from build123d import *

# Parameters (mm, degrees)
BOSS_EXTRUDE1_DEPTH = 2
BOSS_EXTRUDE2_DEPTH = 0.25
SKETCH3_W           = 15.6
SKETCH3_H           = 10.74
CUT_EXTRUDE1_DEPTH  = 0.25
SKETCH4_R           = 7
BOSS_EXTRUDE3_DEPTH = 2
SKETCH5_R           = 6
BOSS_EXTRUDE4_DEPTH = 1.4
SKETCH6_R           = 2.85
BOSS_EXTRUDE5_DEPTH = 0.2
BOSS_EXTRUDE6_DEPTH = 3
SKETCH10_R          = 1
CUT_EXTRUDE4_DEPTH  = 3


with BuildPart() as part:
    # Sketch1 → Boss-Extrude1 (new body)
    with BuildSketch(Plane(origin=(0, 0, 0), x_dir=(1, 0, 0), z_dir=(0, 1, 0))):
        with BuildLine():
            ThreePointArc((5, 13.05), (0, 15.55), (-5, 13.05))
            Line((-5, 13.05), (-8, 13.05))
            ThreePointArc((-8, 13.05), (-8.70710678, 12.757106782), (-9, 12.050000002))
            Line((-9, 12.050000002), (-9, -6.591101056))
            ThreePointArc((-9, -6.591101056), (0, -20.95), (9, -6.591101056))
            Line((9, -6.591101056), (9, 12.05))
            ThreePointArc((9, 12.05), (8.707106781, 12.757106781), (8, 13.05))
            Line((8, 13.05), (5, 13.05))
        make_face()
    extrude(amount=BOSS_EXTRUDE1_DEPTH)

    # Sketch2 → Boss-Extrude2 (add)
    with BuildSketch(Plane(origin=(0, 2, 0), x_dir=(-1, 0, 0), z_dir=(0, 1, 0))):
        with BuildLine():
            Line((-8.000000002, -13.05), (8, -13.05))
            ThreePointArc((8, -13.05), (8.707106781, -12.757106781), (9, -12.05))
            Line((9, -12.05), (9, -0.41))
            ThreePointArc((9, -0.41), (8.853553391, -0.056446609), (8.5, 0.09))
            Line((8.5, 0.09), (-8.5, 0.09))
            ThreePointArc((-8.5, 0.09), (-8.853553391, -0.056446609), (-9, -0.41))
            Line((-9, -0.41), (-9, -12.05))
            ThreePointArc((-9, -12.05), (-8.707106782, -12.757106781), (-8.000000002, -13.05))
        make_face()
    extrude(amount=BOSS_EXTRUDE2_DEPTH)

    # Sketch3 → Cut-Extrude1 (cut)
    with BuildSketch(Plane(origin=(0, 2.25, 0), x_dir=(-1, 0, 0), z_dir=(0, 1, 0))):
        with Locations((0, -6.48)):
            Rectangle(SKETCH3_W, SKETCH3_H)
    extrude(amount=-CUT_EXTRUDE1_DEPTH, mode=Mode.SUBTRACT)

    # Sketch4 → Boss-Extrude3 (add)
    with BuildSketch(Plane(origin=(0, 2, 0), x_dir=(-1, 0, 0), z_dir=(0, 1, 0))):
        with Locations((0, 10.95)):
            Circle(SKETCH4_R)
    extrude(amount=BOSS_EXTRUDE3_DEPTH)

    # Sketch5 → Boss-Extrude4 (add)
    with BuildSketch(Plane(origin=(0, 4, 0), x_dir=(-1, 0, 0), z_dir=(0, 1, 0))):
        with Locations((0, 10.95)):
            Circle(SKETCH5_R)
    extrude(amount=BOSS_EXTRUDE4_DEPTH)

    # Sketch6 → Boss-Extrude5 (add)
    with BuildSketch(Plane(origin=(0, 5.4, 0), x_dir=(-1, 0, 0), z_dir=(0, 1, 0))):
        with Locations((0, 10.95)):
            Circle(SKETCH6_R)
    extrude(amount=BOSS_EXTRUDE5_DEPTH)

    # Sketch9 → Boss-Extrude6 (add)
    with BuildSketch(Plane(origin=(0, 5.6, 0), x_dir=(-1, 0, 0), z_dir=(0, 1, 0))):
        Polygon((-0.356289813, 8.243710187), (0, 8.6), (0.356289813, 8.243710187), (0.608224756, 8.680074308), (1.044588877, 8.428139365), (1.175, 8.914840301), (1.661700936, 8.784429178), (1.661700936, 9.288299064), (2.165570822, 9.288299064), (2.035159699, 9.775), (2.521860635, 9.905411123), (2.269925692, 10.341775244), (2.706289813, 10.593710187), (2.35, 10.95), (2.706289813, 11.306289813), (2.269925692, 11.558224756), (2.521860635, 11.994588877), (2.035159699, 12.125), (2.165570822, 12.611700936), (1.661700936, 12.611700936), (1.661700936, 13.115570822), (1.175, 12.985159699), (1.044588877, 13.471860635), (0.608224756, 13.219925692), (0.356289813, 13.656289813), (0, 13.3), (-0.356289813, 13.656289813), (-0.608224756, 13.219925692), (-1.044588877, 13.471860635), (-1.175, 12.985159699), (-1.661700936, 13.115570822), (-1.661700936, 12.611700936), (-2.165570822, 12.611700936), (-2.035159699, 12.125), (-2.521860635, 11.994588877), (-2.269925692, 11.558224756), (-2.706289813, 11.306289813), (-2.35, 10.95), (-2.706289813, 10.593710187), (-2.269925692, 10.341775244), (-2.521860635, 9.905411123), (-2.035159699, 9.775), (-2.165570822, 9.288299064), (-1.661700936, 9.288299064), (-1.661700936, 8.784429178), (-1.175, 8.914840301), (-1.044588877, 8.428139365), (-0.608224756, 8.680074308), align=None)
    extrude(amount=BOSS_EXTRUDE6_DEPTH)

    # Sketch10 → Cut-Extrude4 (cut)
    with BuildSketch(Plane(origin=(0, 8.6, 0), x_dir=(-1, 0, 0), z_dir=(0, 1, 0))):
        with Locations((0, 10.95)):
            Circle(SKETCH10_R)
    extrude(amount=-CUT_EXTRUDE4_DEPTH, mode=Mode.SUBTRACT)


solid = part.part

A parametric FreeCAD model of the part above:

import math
import FreeCAD as App
import Part
import Sketcher
Q = App.Units.Quantity

doc = App.newDocument("Part")
body = doc.addObject("PartDesign::Body", "Body")

sketch1 = doc.addObject("Sketcher::SketchObject", "Sketch")
body.addObject(sketch1)
sketch1.AttachmentSupport = (doc.XZ_Plane, [""])
sketch1.MapMode = "FlatFace"
sketch1.addGeometry([
    Part.ArcOfCircle(Part.Circle(App.Vector(0, -9.3, 0), App.Vector(0, 0, 1), 6.25), math.radians(-143.130102), math.radians(-36.869898)),
    Part.LineSegment(App.Vector(-5, -13.05, 0), App.Vector(-8, -13.05, 0)),
    Part.ArcOfCircle(Part.Circle(App.Vector(-8, -12.05, 0), App.Vector(0, 0, 1), 1), math.radians(-180), math.radians(-90)),
    Part.LineSegment(App.Vector(-9, -12.05, 0), App.Vector(-9, 6.591101, 0)),
    Part.ArcOfCircle(Part.Circle(App.Vector(0, 10.95, 0), App.Vector(0, 0, 1), 10), math.radians(-25.841933), math.radians(205.841933)),
    Part.LineSegment(App.Vector(9, 6.591101, 0), App.Vector(9, -12.05, 0)),
    Part.ArcOfCircle(Part.Circle(App.Vector(8, -12.05, 0), App.Vector(0, 0, 1), 1), math.radians(-90), math.radians(0)),
    Part.LineSegment(App.Vector(8, -13.05, 0), App.Vector(5, -13.05, 0)),
], False)
sketch1.addConstraint([
    Sketcher.Constraint("Coincident", 0, 1, 1, 1),
    Sketcher.Constraint("Tangent", 1, 2, 2, 2),
    Sketcher.Constraint("Tangent", 2, 1, 3, 1),
    Sketcher.Constraint("Coincident", 3, 2, 4, 2),
    Sketcher.Constraint("Coincident", 4, 1, 5, 1),
    Sketcher.Constraint("Tangent", 5, 2, 6, 2),
    Sketcher.Constraint("Tangent", 6, 1, 7, 1),
    Sketcher.Constraint("Coincident", 7, 2, 0, 2),
    Sketcher.Constraint("Horizontal", 1),
    Sketcher.Constraint("Vertical", 3),
    Sketcher.Constraint("Vertical", 5),
    Sketcher.Constraint("Horizontal", 7),
    Sketcher.Constraint("Equal", 2, 6),
    Sketcher.Constraint("Symmetric", 2, 3, 6, 3, -2),
    Sketcher.Constraint("PointOnObject", 0, 3, -2),
    Sketcher.Constraint("PointOnObject", 4, 3, -2),
    Sketcher.Constraint("Radius", 2, Q("1 mm")),
    Sketcher.Constraint("Radius", 4, Q("10 mm")),
    Sketcher.Constraint("DistanceX", 1, 2, 1, 1, Q("3 mm")),
    Sketcher.Constraint("Radius", 0, Q("6.25 mm")),
    Sketcher.Constraint("DistanceX", 2, 3, -1, 1, Q("8 mm")),
    Sketcher.Constraint("DistanceY", 2, 3, 4, 3, Q("23 mm")),
    Sketcher.Constraint("DistanceY", 0, 3, -1, 1, Q("9.3 mm")),
])
pad1 = doc.addObject("PartDesign::Pad", "Pad")
body.addObject(pad1)
pad1.Profile = sketch1
pad1.Length = 2
pad1.Reversed = True

sketch2 = doc.addObject("Sketcher::SketchObject", "Sketch001")
body.addObject(sketch2)
sketch2.AttachmentSupport = (doc.XZ_Plane, [""])
sketch2.MapMode = "FlatFace"
sketch2.AttachmentOffset = App.Placement(App.Vector(0, 0, -2), App.Rotation())
sketch2.addGeometry([
    Part.LineSegment(App.Vector(8, -13.05, 0), App.Vector(-8, -13.05, 0)),
    Part.ArcOfCircle(Part.Circle(App.Vector(-8, -12.05, 0), App.Vector(0, 0, 1), 1), math.radians(-180), math.radians(-90)),
    Part.LineSegment(App.Vector(-9, -12.05, 0), App.Vector(-9, -0.41, 0)),
    Part.ArcOfCircle(Part.Circle(App.Vector(-8.5, -0.41, 0), App.Vector(0, 0, 1), 0.5), math.radians(90), math.radians(180)),
    Part.LineSegment(App.Vector(-8.5, 0.09, 0), App.Vector(8.5, 0.09, 0)),
    Part.ArcOfCircle(Part.Circle(App.Vector(8.5, -0.41, 0), App.Vector(0, 0, 1), 0.5), math.radians(0), math.radians(90)),
    Part.LineSegment(App.Vector(9, -0.41, 0), App.Vector(9, -12.05, 0)),
    Part.ArcOfCircle(Part.Circle(App.Vector(8, -12.05, 0), App.Vector(0, 0, 1), 1), math.radians(-90), math.radians(0)),
], False)
sketch2.addConstraint([
    Sketcher.Constraint("Tangent", 0, 2, 1, 2),
    Sketcher.Constraint("Tangent", 1, 1, 2, 1),
    Sketcher.Constraint("Tangent", 2, 2, 3, 2),
    Sketcher.Constraint("Tangent", 3, 1, 4, 1),
    Sketcher.Constraint("Tangent", 4, 2, 5, 2),
    Sketcher.Constraint("Tangent", 5, 1, 6, 1),
    Sketcher.Constraint("Tangent", 6, 2, 7, 2),
    Sketcher.Constraint("Tangent", 7, 1, 0, 1),
    Sketcher.Constraint("Horizontal", 0),
    Sketcher.Constraint("Vertical", 2),
    Sketcher.Constraint("Horizontal", 4),
    Sketcher.Constraint("Vertical", 6),
    Sketcher.Constraint("Equal", 3, 5),
    Sketcher.Constraint("Equal", 1, 7),
    Sketcher.Constraint("Radius", 1, Q("1 mm")),
    Sketcher.Constraint("Radius", 3, Q("0.5 mm")),
    Sketcher.Constraint("DistanceX", 0, 2, 0, 1, Q("16 mm")),
    Sketcher.Constraint("DistanceX", 1, 3, -1, 1, Q("8 mm")),
    Sketcher.Constraint("DistanceY", 2, 1, 2, 2, Q("11.64 mm")),
    Sketcher.Constraint("DistanceY", 1, 3, -1, 1, Q("12.05 mm")),
])
pad2 = doc.addObject("PartDesign::Pad", "Pad001")
body.addObject(pad2)
pad2.Profile = sketch2
pad2.Length = 0.25
pad2.Reversed = True

sketch3 = doc.addObject("Sketcher::SketchObject", "Sketch002")
body.addObject(sketch3)
sketch3.AttachmentSupport = (doc.XZ_Plane, [""])
sketch3.MapMode = "FlatFace"
sketch3.AttachmentOffset = App.Placement(App.Vector(0, 0, -2.25), App.Rotation())
sketch3.addGeometry([
    Part.LineSegment(App.Vector(7.8, -1.11, 0), App.Vector(7.8, -11.85, 0)),
    Part.LineSegment(App.Vector(7.8, -11.85, 0), App.Vector(-7.8, -11.85, 0)),
    Part.LineSegment(App.Vector(-7.8, -11.85, 0), App.Vector(-7.8, -1.11, 0)),
    Part.LineSegment(App.Vector(-7.8, -1.11, 0), App.Vector(7.8, -1.11, 0)),
], False)
sketch3.addConstraint([
    Sketcher.Constraint("Coincident", 0, 2, 1, 1),
    Sketcher.Constraint("Coincident", 1, 2, 2, 1),
    Sketcher.Constraint("Coincident", 2, 2, 3, 1),
    Sketcher.Constraint("Coincident", 3, 2, 0, 1),
    Sketcher.Constraint("Vertical", 0),
    Sketcher.Constraint("Horizontal", 1),
    Sketcher.Constraint("Vertical", 2),
    Sketcher.Constraint("Horizontal", 3),
    Sketcher.Constraint("DistanceX", 1, 2, 1, 1, Q("15.6 mm")),
    Sketcher.Constraint("DistanceY", 0, 2, 0, 1, Q("10.74 mm")),
    Sketcher.Constraint("DistanceX", -1, 1, 0, 2, Q("7.8 mm")),
    Sketcher.Constraint("DistanceY", 0, 2, -1, 1, Q("11.85 mm")),
])
pocket1 = doc.addObject("PartDesign::Pocket", "Pocket")
body.addObject(pocket1)
pocket1.Profile = sketch3
pocket1.Length = 0.25
pocket1.Reversed = True

sketch4 = doc.addObject("Sketcher::SketchObject", "Sketch003")
body.addObject(sketch4)
sketch4.AttachmentSupport = (doc.XZ_Plane, [""])
sketch4.MapMode = "FlatFace"
sketch4.AttachmentOffset = App.Placement(App.Vector(0, 0, -2), App.Rotation())
sketch4.addGeometry(Part.Circle(App.Vector(0, 10.95, 0), App.Vector(0, 0, 1), 7), False)
sketch4.addConstraint([
    Sketcher.Constraint("PointOnObject", 0, 3, -2),
    Sketcher.Constraint("Diameter", 0, Q("14 mm")),
    Sketcher.Constraint("DistanceY", -1, 1, 0, 3, Q("10.95 mm")),
])
pad3 = doc.addObject("PartDesign::Pad", "Pad002")
body.addObject(pad3)
pad3.Profile = sketch4
pad3.Length = 2
pad3.Reversed = True

sketch5 = doc.addObject("Sketcher::SketchObject", "Sketch004")
body.addObject(sketch5)
sketch5.AttachmentSupport = (doc.XZ_Plane, [""])
sketch5.MapMode = "FlatFace"
sketch5.AttachmentOffset = App.Placement(App.Vector(0, 0, -4), App.Rotation())
sketch5.addGeometry(Part.Circle(App.Vector(0, 10.95, 0), App.Vector(0, 0, 1), 6), False)
sketch5.addConstraint([
    Sketcher.Constraint("PointOnObject", 0, 3, -2),
    Sketcher.Constraint("Diameter", 0, Q("12 mm")),
    Sketcher.Constraint("DistanceY", -1, 1, 0, 3, Q("10.95 mm")),
])
pad4 = doc.addObject("PartDesign::Pad", "Pad003")
body.addObject(pad4)
pad4.Profile = sketch5
pad4.Length = 1.4
pad4.Reversed = True

sketch6 = doc.addObject("Sketcher::SketchObject", "Sketch005")
body.addObject(sketch6)
sketch6.AttachmentSupport = (doc.XZ_Plane, [""])
sketch6.MapMode = "FlatFace"
sketch6.AttachmentOffset = App.Placement(App.Vector(0, 0, -5.4), App.Rotation())
sketch6.addGeometry(Part.Circle(App.Vector(0, 10.95, 0), App.Vector(0, 0, 1), 2.85), False)
sketch6.addConstraint([
    Sketcher.Constraint("PointOnObject", 0, 3, -2),
    Sketcher.Constraint("Diameter", 0, Q("5.7 mm")),
    Sketcher.Constraint("DistanceY", -1, 1, 0, 3, Q("10.95 mm")),
])
pad5 = doc.addObject("PartDesign::Pad", "Pad004")
body.addObject(pad5)
pad5.Profile = sketch6
pad5.Length = 0.2
pad5.Reversed = True

sketch7 = doc.addObject("Sketcher::SketchObject", "Sketch006")
body.addObject(sketch7)
sketch7.AttachmentSupport = (doc.XZ_Plane, [""])
sketch7.MapMode = "FlatFace"
sketch7.AttachmentOffset = App.Placement(App.Vector(0, 0, -5.6), App.Rotation())
sketch7.addGeometry([
    Part.LineSegment(App.Vector(0.35629, 8.24371, 0), App.Vector(0, 8.6, 0)),
    Part.LineSegment(App.Vector(0, 8.6, 0), App.Vector(-0.35629, 8.24371, 0)),
    Part.LineSegment(App.Vector(-0.35629, 8.24371, 0), App.Vector(-0.608225, 8.680074, 0)),
    Part.LineSegment(App.Vector(-0.608225, 8.680074, 0), App.Vector(-1.044589, 8.428139, 0)),
    Part.LineSegment(App.Vector(-1.044589, 8.428139, 0), App.Vector(-1.175, 8.91484, 0)),
    Part.LineSegment(App.Vector(-1.175, 8.91484, 0), App.Vector(-1.661701, 8.784429, 0)),
    Part.LineSegment(App.Vector(-1.661701, 8.784429, 0), App.Vector(-1.661701, 9.288299, 0)),
    Part.LineSegment(App.Vector(-1.661701, 9.288299, 0), App.Vector(-2.165571, 9.288299, 0)),
    Part.LineSegment(App.Vector(-2.165571, 9.288299, 0), App.Vector(-2.03516, 9.775, 0)),
    Part.LineSegment(App.Vector(-2.03516, 9.775, 0), App.Vector(-2.521861, 9.905411, 0)),
    Part.LineSegment(App.Vector(-2.521861, 9.905411, 0), App.Vector(-2.269926, 10.341775, 0)),
    Part.LineSegment(App.Vector(-2.269926, 10.341775, 0), App.Vector(-2.70629, 10.59371, 0)),
    Part.LineSegment(App.Vector(-2.70629, 10.59371, 0), App.Vector(-2.35, 10.95, 0)),
    Part.LineSegment(App.Vector(-2.35, 10.95, 0), App.Vector(-2.70629, 11.30629, 0)),
    Part.LineSegment(App.Vector(-2.70629, 11.30629, 0), App.Vector(-2.269926, 11.558225, 0)),
    Part.LineSegment(App.Vector(-2.269926, 11.558225, 0), App.Vector(-2.521861, 11.994589, 0)),
    Part.LineSegment(App.Vector(-2.521861, 11.994589, 0), App.Vector(-2.03516, 12.125, 0)),
    Part.LineSegment(App.Vector(-2.03516, 12.125, 0), App.Vector(-2.165571, 12.611701, 0)),
    Part.LineSegment(App.Vector(-2.165571, 12.611701, 0), App.Vector(-1.661701, 12.611701, 0)),
    Part.LineSegment(App.Vector(-1.661701, 12.611701, 0), App.Vector(-1.661701, 13.115571, 0)),
    Part.LineSegment(App.Vector(-1.661701, 13.115571, 0), App.Vector(-1.175, 12.98516, 0)),
    Part.LineSegment(App.Vector(-1.175, 12.98516, 0), App.Vector(-1.044589, 13.471861, 0)),
    Part.LineSegment(App.Vector(-1.044589, 13.471861, 0), App.Vector(-0.608225, 13.219926, 0)),
    Part.LineSegment(App.Vector(-0.608225, 13.219926, 0), App.Vector(-0.35629, 13.65629, 0)),
    Part.LineSegment(App.Vector(-0.35629, 13.65629, 0), App.Vector(0, 13.3, 0)),
    Part.LineSegment(App.Vector(0, 13.3, 0), App.Vector(0.35629, 13.65629, 0)),
    Part.LineSegment(App.Vector(0.35629, 13.65629, 0), App.Vector(0.608225, 13.219926, 0)),
    Part.LineSegment(App.Vector(0.608225, 13.219926, 0), App.Vector(1.044589, 13.471861, 0)),
    Part.LineSegment(App.Vector(1.044589, 13.471861, 0), App.Vector(1.175, 12.98516, 0)),
    Part.LineSegment(App.Vector(1.175, 12.98516, 0), App.Vector(1.661701, 13.115571, 0)),
    Part.LineSegment(App.Vector(1.661701, 13.115571, 0), App.Vector(1.661701, 12.611701, 0)),
    Part.LineSegment(App.Vector(1.661701, 12.611701, 0), App.Vector(2.165571, 12.611701, 0)),
    Part.LineSegment(App.Vector(2.165571, 12.611701, 0), App.Vector(2.03516, 12.125, 0)),
    Part.LineSegment(App.Vector(2.03516, 12.125, 0), App.Vector(2.521861, 11.994589, 0)),
    Part.LineSegment(App.Vector(2.521861, 11.994589, 0), App.Vector(2.269926, 11.558225, 0)),
    Part.LineSegment(App.Vector(2.269926, 11.558225, 0), App.Vector(2.70629, 11.30629, 0)),
    Part.LineSegment(App.Vector(2.70629, 11.30629, 0), App.Vector(2.35, 10.95, 0)),
    Part.LineSegment(App.Vector(2.35, 10.95, 0), App.Vector(2.70629, 10.59371, 0)),
    Part.LineSegment(App.Vector(2.70629, 10.59371, 0), App.Vector(2.269926, 10.341775, 0)),
    Part.LineSegment(App.Vector(2.269926, 10.341775, 0), App.Vector(2.521861, 9.905411, 0)),
    Part.LineSegment(App.Vector(2.521861, 9.905411, 0), App.Vector(2.03516, 9.775, 0)),
    Part.LineSegment(App.Vector(2.03516, 9.775, 0), App.Vector(2.165571, 9.288299, 0)),
    Part.LineSegment(App.Vector(2.165571, 9.288299, 0), App.Vector(1.661701, 9.288299, 0)),
    Part.LineSegment(App.Vector(1.661701, 9.288299, 0), App.Vector(1.661701, 8.784429, 0)),
    Part.LineSegment(App.Vector(1.661701, 8.784429, 0), App.Vector(1.175, 8.91484, 0)),
    Part.LineSegment(App.Vector(1.175, 8.91484, 0), App.Vector(1.044589, 8.428139, 0)),
    Part.LineSegment(App.Vector(1.044589, 8.428139, 0), App.Vector(0.608225, 8.680074, 0)),
    Part.LineSegment(App.Vector(0.608225, 8.680074, 0), App.Vector(0.35629, 8.24371, 0)),
], False)
sketch7.addConstraint([
    Sketcher.Constraint("Coincident", 0, 2, 1, 1),
    Sketcher.Constraint("Coincident", 1, 2, 2, 1),
    Sketcher.Constraint("Coincident", 2, 2, 3, 1),
    Sketcher.Constraint("Coincident", 3, 2, 4, 1),
    Sketcher.Constraint("Coincident", 4, 2, 5, 1),
    Sketcher.Constraint("Coincident", 5, 2, 6, 1),
    Sketcher.Constraint("Coincident", 6, 2, 7, 1),
    Sketcher.Constraint("Coincident", 7, 2, 8, 1),
    Sketcher.Constraint("Coincident", 8, 2, 9, 1),
    Sketcher.Constraint("Coincident", 9, 2, 10, 1),
    Sketcher.Constraint("Coincident", 10, 2, 11, 1),
    Sketcher.Constraint("Coincident", 11, 2, 12, 1),
    Sketcher.Constraint("Coincident", 12, 2, 13, 1),
    Sketcher.Constraint("Coincident", 13, 2, 14, 1),
    Sketcher.Constraint("Coincident", 14, 2, 15, 1),
    Sketcher.Constraint("Coincident", 15, 2, 16, 1),
    Sketcher.Constraint("Coincident", 16, 2, 17, 1),
    Sketcher.Constraint("Coincident", 17, 2, 18, 1),
    Sketcher.Constraint("Coincident", 18, 2, 19, 1),
    Sketcher.Constraint("Coincident", 19, 2, 20, 1),
    Sketcher.Constraint("Coincident", 20, 2, 21, 1),
    Sketcher.Constraint("Coincident", 21, 2, 22, 1),
    Sketcher.Constraint("Coincident", 22, 2, 23, 1),
    Sketcher.Constraint("Coincident", 23, 2, 24, 1),
    Sketcher.Constraint("Coincident", 24, 2, 25, 1),
    Sketcher.Constraint("Coincident", 25, 2, 26, 1),
    Sketcher.Constraint("Coincident", 26, 2, 27, 1),
    Sketcher.Constraint("Coincident", 27, 2, 28, 1),
    Sketcher.Constraint("Coincident", 28, 2, 29, 1),
    Sketcher.Constraint("Coincident", 29, 2, 30, 1),
    Sketcher.Constraint("Coincident", 30, 2, 31, 1),
    Sketcher.Constraint("Coincident", 31, 2, 32, 1),
    Sketcher.Constraint("Coincident", 32, 2, 33, 1),
    Sketcher.Constraint("Coincident", 33, 2, 34, 1),
    Sketcher.Constraint("Coincident", 34, 2, 35, 1),
    Sketcher.Constraint("Coincident", 35, 2, 36, 1),
    Sketcher.Constraint("Coincident", 36, 2, 37, 1),
    Sketcher.Constraint("Coincident", 37, 2, 38, 1),
    Sketcher.Constraint("Coincident", 38, 2, 39, 1),
    Sketcher.Constraint("Coincident", 39, 2, 40, 1),
    Sketcher.Constraint("Coincident", 40, 2, 41, 1),
    Sketcher.Constraint("Coincident", 41, 2, 42, 1),
    Sketcher.Constraint("Coincident", 42, 2, 43, 1),
    Sketcher.Constraint("Coincident", 43, 2, 44, 1),
    Sketcher.Constraint("Coincident", 44, 2, 45, 1),
    Sketcher.Constraint("Coincident", 45, 2, 46, 1),
    Sketcher.Constraint("Coincident", 46, 2, 47, 1),
    Sketcher.Constraint("Coincident", 47, 2, 0, 1),
    Sketcher.Constraint("Vertical", 6),
    Sketcher.Constraint("Horizontal", 7),
    Sketcher.Constraint("Horizontal", 18),
    Sketcher.Constraint("Vertical", 19),
    Sketcher.Constraint("Vertical", 30),
    Sketcher.Constraint("Horizontal", 31),
    Sketcher.Constraint("Horizontal", 42),
    Sketcher.Constraint("Vertical", 43),
    Sketcher.Constraint("Symmetric", 23, 2, 25, 2, -2),
    Sketcher.Constraint("Symmetric", 22, 2, 26, 2, -2),
    Sketcher.Constraint("Symmetric", 21, 2, 27, 2, -2),
    Sketcher.Constraint("Symmetric", 20, 2, 28, 2, -2),
    Sketcher.Constraint("Symmetric", 19, 2, 29, 2, -2),
    Sketcher.Constraint("Symmetric", 17, 2, 31, 2, -2),
    Sketcher.Constraint("Symmetric", 16, 2, 32, 2, -2),
    Sketcher.Constraint("Symmetric", 15, 2, 33, 2, -2),
    Sketcher.Constraint("Symmetric", 14, 2, 34, 2, -2),
    Sketcher.Constraint("Symmetric", 13, 2, 35, 2, -2),
    Sketcher.Constraint("Symmetric", 12, 2, 36, 2, -2),
    Sketcher.Constraint("Symmetric", 11, 2, 37, 2, -2),
    Sketcher.Constraint("Symmetric", 10, 2, 38, 2, -2),
    Sketcher.Constraint("Symmetric", 9, 2, 39, 2, -2),
    Sketcher.Constraint("Symmetric", 8, 2, 40, 2, -2),
    Sketcher.Constraint("Symmetric", 7, 2, 41, 2, -2),
    Sketcher.Constraint("Symmetric", 5, 2, 43, 2, -2),
    Sketcher.Constraint("Symmetric", 4, 2, 44, 2, -2),
    Sketcher.Constraint("Symmetric", 3, 2, 45, 2, -2),
    Sketcher.Constraint("Symmetric", 2, 2, 46, 2, -2),
    Sketcher.Constraint("Symmetric", 1, 2, 47, 2, -2),
    Sketcher.Constraint("PointOnObject", 0, 2, -2),
    Sketcher.Constraint("PointOnObject", 24, 2, -2),
    Sketcher.Constraint("Perpendicular", 0, 1),
    Sketcher.Constraint("Perpendicular", 2, 3),
    Sketcher.Constraint("Perpendicular", 4, 5),
    Sketcher.Constraint("Perpendicular", 8, 9),
    Sketcher.Constraint("Perpendicular", 10, 11),
    Sketcher.Constraint("Parallel", 1, 12),
    Sketcher.Constraint("Perpendicular", 12, 13),
    Sketcher.Constraint("Parallel", 3, 14),
    Sketcher.Constraint("Perpendicular", 14, 15),
    Sketcher.Constraint("Parallel", 5, 16),
    Sketcher.Constraint("Perpendicular", 16, 17),
    Sketcher.Constraint("Parallel", 9, 20),
    Sketcher.Constraint("Perpendicular", 20, 21),
    Sketcher.Constraint("Parallel", 11, 22),
    Sketcher.Constraint("Perpendicular", 22, 23),
    Sketcher.Constraint("Parallel", 13, 24),
    Sketcher.Constraint("Parallel", 15, 26),
    Sketcher.Constraint("Parallel", 17, 28),
    Sketcher.Constraint("Vertical", 11, 2, 13, 2),
    Sketcher.Constraint("Vertical", 10, 2, 14, 2),
    Sketcher.Constraint("Vertical", 9, 2, 15, 2),
    Sketcher.Constraint("Vertical", 8, 2, 16, 2),
    Sketcher.Constraint("Vertical", 7, 2, 17, 2),
    Sketcher.Constraint("Vertical", 6, 2, 18, 2),
    Sketcher.Constraint("Vertical", 4, 2, 20, 2),
    Sketcher.Constraint("Vertical", 3, 2, 21, 2),
    Sketcher.Constraint("Vertical", 2, 2, 22, 2),
    Sketcher.Constraint("Vertical", 1, 2, 23, 2),
    Sketcher.Constraint("Equal", 42, 6),
    Sketcher.Constraint("Equal", 6, 19),
    Sketcher.Constraint("Equal", 1, 2),
    Sketcher.Constraint("Equal", 2, 3),
    Sketcher.Constraint("Equal", 3, 4),
    Sketcher.Constraint("Equal", 4, 5),
    Sketcher.Constraint("Equal", 5, 8),
    Sketcher.Constraint("Equal", 8, 9),
    Sketcher.Constraint("Equal", 9, 10),
    Sketcher.Constraint("Equal", 10, 11),
    Sketcher.Constraint("Equal", 11, 12),
    Sketcher.Constraint("Angle", 2, Q("120 deg")),
    Sketcher.Constraint("Angle", 4, Q("105 deg")),
    Sketcher.Constraint("DistanceY", -1, 1, 0, 2, Q("8.6 mm")),
    Sketcher.Constraint("DistanceY", -1, 1, 24, 2, Q("13.3 mm")),
    Sketcher.Constraint("DistanceX", 4, 2, -1, 1, Q("1.175 mm")),
])
pad6 = doc.addObject("PartDesign::Pad", "Pad005")
body.addObject(pad6)
pad6.Profile = sketch7
pad6.Length = 3
pad6.Reversed = True

sketch8 = doc.addObject("Sketcher::SketchObject", "Sketch007")
body.addObject(sketch8)
sketch8.AttachmentSupport = (doc.XZ_Plane, [""])
sketch8.MapMode = "FlatFace"
sketch8.AttachmentOffset = App.Placement(App.Vector(0, 0, -8.6), App.Rotation())
sketch8.addGeometry(Part.Circle(App.Vector(0, 10.95, 0), App.Vector(0, 0, 1), 1), False)
sketch8.addConstraint([
    Sketcher.Constraint("PointOnObject", 0, 3, -2),
    Sketcher.Constraint("Diameter", 0, Q("2 mm")),
    Sketcher.Constraint("DistanceY", -1, 1, 0, 3, Q("10.95 mm")),
])
pocket2 = doc.addObject("PartDesign::Pocket", "Pocket001")
body.addObject(pocket2)
pocket2.Profile = sketch8
pocket2.Length = 3
pocket2.Reversed = True

doc.recompute()
